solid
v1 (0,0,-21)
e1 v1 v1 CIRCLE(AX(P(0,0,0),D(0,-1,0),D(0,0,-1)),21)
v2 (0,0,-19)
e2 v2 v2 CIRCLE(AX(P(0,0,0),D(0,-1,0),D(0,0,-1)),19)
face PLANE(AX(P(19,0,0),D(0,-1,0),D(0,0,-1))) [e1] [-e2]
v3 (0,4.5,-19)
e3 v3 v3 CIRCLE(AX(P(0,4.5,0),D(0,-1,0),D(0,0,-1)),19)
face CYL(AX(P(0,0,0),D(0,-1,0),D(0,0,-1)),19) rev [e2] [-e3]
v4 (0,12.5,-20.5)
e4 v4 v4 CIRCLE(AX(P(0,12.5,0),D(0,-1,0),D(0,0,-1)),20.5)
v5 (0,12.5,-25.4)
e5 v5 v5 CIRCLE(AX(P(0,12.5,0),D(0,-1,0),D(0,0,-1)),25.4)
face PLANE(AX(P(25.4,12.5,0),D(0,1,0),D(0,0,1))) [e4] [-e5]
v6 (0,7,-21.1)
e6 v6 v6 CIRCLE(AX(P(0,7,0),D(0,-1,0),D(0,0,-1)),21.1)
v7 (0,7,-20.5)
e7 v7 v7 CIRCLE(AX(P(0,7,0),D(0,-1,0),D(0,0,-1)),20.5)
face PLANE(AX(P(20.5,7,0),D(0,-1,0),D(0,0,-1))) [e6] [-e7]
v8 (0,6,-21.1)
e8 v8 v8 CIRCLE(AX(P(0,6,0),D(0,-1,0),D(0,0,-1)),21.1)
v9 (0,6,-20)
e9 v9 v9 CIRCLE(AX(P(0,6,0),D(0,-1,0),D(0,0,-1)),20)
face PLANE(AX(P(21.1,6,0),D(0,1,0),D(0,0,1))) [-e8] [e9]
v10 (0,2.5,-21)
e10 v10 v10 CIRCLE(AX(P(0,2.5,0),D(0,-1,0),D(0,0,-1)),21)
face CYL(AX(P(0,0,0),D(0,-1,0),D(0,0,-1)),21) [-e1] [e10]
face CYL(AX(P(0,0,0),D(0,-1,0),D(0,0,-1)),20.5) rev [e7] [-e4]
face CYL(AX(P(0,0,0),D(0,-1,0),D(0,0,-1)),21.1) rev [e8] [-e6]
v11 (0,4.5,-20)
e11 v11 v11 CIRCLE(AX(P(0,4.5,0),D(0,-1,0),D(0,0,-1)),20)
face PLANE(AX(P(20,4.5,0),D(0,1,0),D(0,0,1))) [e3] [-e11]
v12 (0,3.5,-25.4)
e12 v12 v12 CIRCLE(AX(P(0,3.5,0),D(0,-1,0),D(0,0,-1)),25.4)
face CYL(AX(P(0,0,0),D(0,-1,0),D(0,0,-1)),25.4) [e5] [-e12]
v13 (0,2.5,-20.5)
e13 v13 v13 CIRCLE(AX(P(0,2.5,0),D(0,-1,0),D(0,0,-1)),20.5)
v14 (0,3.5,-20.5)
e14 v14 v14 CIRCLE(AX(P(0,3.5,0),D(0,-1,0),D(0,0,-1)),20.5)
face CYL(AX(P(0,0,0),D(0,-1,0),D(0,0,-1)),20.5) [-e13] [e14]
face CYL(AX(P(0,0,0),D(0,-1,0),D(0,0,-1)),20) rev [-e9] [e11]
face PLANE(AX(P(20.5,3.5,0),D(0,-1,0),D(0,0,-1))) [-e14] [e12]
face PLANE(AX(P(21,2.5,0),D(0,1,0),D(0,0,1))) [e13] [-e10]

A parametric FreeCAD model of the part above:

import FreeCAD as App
import Part
import Sketcher
Q = App.Units.Quantity

doc = App.newDocument("Part")
params = doc.addObject("Spreadsheet::Sheet", "Params")
for row, (alias, value) in enumerate([
    ("sketch1_width", "2 mm"),
    ("sketch1_width2", "1 mm"),
    ("sketch1_height", "9 mm"),
    ("sketch1_width3", "0.5 mm"),
    ("sketch1_width4", "4.9 mm"),
    ("revolution_angle", "360 deg"),
], start=1):
    params.set(f"A{row}", alias)
    params.set(f"B{row}", "=" + value)
    params.setAlias(f"B{row}", alias)

body = doc.addObject("PartDesign::Body", "Body")

sketch1 = body.newObject("Sketcher::SketchObject", "Sketch")
sketch1.AttachmentSupport = (doc.getObject("XY_Plane"), [""])
sketch1.MapMode = "FlatFace"
sketch1.addGeometry([
    Part.LineSegment(App.Vector(19, 0, 0), App.Vector(21, 0, 0)),
    Part.LineSegment(App.Vector(21, 0, 0), App.Vector(21, 2.5, 0)),
    Part.LineSegment(App.Vector(21, 2.5, 0), App.Vector(20.5, 2.5, 0)),
    Part.LineSegment(App.Vector(20.5, 2.5, 0), App.Vector(20.5, 3.5, 0)),
    Part.LineSegment(App.Vector(20.5, 3.5, 0), App.Vector(25.4, 3.5, 0)),
    Part.LineSegment(App.Vector(25.4, 3.5, 0), App.Vector(25.4, 12.5, 0)),
    Part.LineSegment(App.Vector(25.4, 12.5, 0), App.Vector(20.5, 12.5, 0)),
    Part.LineSegment(App.Vector(20.5, 12.5, 0), App.Vector(20.5, 7, 0)),
    Part.LineSegment(App.Vector(20.5, 7, 0), App.Vector(21.1, 7, 0)),
    Part.LineSegment(App.Vector(21.1, 7, 0), App.Vector(21.1, 6, 0)),
    Part.LineSegment(App.Vector(21.1, 6, 0), App.Vector(20, 6, 0)),
    Part.LineSegment(App.Vector(20, 6, 0), App.Vector(20, 4.5, 0)),
    Part.LineSegment(App.Vector(20, 4.5, 0), App.Vector(19, 4.5, 0)),
    Part.LineSegment(App.Vector(19, 4.5, 0), App.Vector(19, 0, 0)),
], False)
sketch1.addConstraint([
    Sketcher.Constraint("Coincident", 0, 2, 1, 1),
    Sketcher.Constraint("Coincident", 1, 2, 2, 1),
    Sketcher.Constraint("Coincident", 2, 2, 3, 1),
    Sketcher.Constraint("Coincident", 3, 2, 4, 1),
    Sketcher.Constraint("Coincident", 4, 2, 5, 1),
    Sketcher.Constraint("Coincident", 5, 2, 6, 1),
    Sketcher.Constraint("Coincident", 6, 2, 7, 1),
    Sketcher.Constraint("Coincident", 7, 2, 8, 1),
    Sketcher.Constraint("Coincident", 8, 2, 9, 1),
    Sketcher.Constraint("Coincident", 9, 2, 10, 1),
    Sketcher.Constraint("Coincident", 10, 2, 11, 1),
    Sketcher.Constraint("Coincident", 11, 2, 12, 1),
    Sketcher.Constraint("Coincident", 12, 2, 13, 1),
    Sketcher.Constraint("Coincident", 13, 2, 0, 1),
    Sketcher.Constraint("Horizontal", 0),
    Sketcher.Constraint("Vertical", 1),
    Sketcher.Constraint("Horizontal", 2),
    Sketcher.Constraint("Vertical", 3),
    Sketcher.Constraint("Horizontal", 4),
    Sketcher.Constraint("Vertical", 5),
    Sketcher.Constraint("Horizontal", 6),
    Sketcher.Constraint("Vertical", 7),
    Sketcher.Constraint("Horizontal", 8),
    Sketcher.Constraint("Vertical", 9),
    Sketcher.Constraint("Horizontal", 10),
    Sketcher.Constraint("Vertical", 11),
    Sketcher.Constraint("Horizontal", 12),
    Sketcher.Constraint("Vertical", 13),
    Sketcher.Constraint("PointOnObject", 0, 2, -1),
    Sketcher.Constraint("Vertical", 3, 2, 6, 2),
    Sketcher.Constraint("Equal", 12, 3),
    Sketcher.Constraint("Equal", 3, 9),
    Sketcher.Constraint("DistanceX", 0, 1, 0, 2, Q("2 mm")),
    Sketcher.Constraint("DistanceX", 12, 2, 12, 1, Q("1 mm")),
    Sketcher.Constraint("DistanceY", 5, 1, 5, 2, Q("9 mm")),
    Sketcher.Constraint("DistanceX", 2, 2, 2, 1, Q("0.5 mm")),
    Sketcher.Constraint("DistanceX", 4, 1, 4, 2, Q("4.9 mm")),
    Sketcher.Constraint("DistanceX", 8, 1, 8, 2, Q("0.6 mm")),
    Sketcher.Constraint("DistanceY", 1, 1, 1, 2, Q("2.5 mm")),
    Sketcher.Constraint("DistanceY", 7, 2, 7, 1, Q("5.5 mm")),
    Sketcher.Constraint("DistanceY", 11, 2, 11, 1, Q("1.5 mm")),
    Sketcher.Constraint("DistanceX", -1, 1, 0, 2, Q("21 mm")),
])
sketch1.setExpression("Constraints[32]", "Params.sketch1_width")
sketch1.setExpression("Constraints[33]", "Params.sketch1_width2")
sketch1.setExpression("Constraints[34]", "Params.sketch1_height")
sketch1.setExpression("Constraints[35]", "Params.sketch1_width3")
sketch1.setExpression("Constraints[36]", "Params.sketch1_width4")
revolution = body.newObject("PartDesign::Revolution", "Revolution")
revolution.Profile = sketch1
revolution.ReferenceAxis = (sketch1, ["V_Axis"])
revolution.setExpression("Angle", "Params.revolution_angle")

doc.recompute()
